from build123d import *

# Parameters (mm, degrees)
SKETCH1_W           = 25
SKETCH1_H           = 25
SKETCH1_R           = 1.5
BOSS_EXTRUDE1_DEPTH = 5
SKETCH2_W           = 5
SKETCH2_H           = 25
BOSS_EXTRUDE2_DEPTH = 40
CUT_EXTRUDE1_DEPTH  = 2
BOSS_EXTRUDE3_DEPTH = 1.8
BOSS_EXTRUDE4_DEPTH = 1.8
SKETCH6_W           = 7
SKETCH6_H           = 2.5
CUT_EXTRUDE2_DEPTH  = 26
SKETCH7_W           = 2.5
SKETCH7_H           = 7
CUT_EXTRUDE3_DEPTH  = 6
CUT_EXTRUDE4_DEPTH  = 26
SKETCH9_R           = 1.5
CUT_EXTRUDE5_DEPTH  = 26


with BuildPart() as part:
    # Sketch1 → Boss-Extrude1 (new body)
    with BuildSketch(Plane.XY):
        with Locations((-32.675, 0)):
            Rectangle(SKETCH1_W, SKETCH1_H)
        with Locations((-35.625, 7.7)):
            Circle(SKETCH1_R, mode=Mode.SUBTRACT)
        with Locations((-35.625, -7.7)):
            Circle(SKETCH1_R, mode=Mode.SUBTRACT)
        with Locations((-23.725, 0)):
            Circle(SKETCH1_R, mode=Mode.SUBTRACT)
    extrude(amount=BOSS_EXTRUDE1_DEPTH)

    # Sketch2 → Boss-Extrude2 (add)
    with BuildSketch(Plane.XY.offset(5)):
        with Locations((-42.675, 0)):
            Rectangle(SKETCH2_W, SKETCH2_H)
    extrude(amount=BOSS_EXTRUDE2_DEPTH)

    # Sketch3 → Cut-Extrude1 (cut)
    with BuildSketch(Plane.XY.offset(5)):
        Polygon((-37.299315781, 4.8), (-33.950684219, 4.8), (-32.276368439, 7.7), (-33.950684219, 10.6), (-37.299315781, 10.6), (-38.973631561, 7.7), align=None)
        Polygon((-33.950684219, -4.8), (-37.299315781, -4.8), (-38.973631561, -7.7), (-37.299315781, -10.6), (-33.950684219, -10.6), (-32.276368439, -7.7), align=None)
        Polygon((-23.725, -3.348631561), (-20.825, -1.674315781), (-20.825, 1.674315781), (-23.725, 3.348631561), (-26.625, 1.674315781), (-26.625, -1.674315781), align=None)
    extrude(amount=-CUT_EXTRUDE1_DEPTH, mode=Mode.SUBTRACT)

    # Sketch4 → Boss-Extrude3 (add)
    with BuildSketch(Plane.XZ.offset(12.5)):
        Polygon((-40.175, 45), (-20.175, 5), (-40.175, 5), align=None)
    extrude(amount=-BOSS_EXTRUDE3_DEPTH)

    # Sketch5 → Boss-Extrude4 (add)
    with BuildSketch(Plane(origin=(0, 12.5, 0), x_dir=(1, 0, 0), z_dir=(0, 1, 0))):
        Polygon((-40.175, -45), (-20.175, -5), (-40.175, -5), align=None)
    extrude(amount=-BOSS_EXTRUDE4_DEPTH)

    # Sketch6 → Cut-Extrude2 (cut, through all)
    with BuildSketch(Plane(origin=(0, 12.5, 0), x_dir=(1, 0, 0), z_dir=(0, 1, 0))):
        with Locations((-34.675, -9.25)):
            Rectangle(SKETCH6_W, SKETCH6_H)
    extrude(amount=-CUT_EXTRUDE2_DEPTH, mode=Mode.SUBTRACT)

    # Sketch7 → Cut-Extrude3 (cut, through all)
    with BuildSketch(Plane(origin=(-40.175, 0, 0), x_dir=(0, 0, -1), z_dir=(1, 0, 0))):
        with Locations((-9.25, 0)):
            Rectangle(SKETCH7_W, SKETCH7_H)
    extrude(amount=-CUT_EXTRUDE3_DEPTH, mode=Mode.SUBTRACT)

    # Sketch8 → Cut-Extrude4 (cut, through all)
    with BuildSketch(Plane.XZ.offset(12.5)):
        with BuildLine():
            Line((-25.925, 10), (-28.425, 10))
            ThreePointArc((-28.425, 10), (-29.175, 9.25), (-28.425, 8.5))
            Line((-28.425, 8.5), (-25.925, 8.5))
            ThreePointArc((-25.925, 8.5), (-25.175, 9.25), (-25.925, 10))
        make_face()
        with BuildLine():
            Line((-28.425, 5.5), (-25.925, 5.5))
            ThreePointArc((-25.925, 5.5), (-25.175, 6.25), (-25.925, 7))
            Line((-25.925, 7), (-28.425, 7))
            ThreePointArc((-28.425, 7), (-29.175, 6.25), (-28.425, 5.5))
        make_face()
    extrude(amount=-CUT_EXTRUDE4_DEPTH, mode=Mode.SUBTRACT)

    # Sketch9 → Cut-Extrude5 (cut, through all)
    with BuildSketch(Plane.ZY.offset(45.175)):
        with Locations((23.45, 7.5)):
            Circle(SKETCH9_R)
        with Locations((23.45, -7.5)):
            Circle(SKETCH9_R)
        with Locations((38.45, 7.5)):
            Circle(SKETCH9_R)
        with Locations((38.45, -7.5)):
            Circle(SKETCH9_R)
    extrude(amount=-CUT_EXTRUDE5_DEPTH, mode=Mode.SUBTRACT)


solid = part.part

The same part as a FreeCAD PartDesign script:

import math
import FreeCAD as App
import Part
import Sketcher

V = App.Vector
Q = App.Units.Quantity


def add_polygon(sketch, points):
    """Adds a closed chain of lines whose ends are joined by coincident constraints."""
    first, n = sketch.GeometryCount, len(points)
    for a, b in zip(points, points[1:] + points[:1]):
        sketch.addGeometry(Part.LineSegment(App.Vector(*a, 0), App.Vector(*b, 0)), False)
    for i in range(n):
        sketch.addConstraint(Sketcher.Constraint("Coincident", first + i, 2, first + (i + 1) % n, 1))

doc = App.newDocument("Part")
body = doc.addObject("PartDesign::Body", "Body")

sketch1 = body.newObject("Sketcher::SketchObject", "Sketch")
sketch1.AttachmentSupport = (doc.getObject("XY_Plane"), [""])
sketch1.MapMode = "FlatFace"
add_polygon(sketch1, [(-45.2, 12.5), (-45.2, -12.5), (-20.2, -12.5), (-20.2, 12.5)])
sketch1.addGeometry(Part.Circle(V(-35.6, -7.7, 0), V(0, 0, 1), 1.5), False)
sketch1.addGeometry(Part.Circle(V(-35.6, 7.7, 0), V(0, 0, 1), 1.5), False)
sketch1.addGeometry(Part.Circle(V(-23.7, 0, 0), V(0, 0, 1), 1.5), False)
sketch1.addConstraint([
    Sketcher.Constraint("Vertical", 0),
    Sketcher.Constraint("Horizontal", 1),
    Sketcher.Constraint("Vertical", 2),
    Sketcher.Constraint("Horizontal", 3),
    Sketcher.Constraint("Equal", 4, 5),
    Sketcher.Constraint("Equal", 5, 6),
    Sketcher.Constraint("Symmetric", 4, 3, 5, 3, -1),
    Sketcher.Constraint("PointOnObject", 6, 3, -1),
    Sketcher.Constraint("Equal", 3, 0),
    Sketcher.Constraint("Diameter", 4, Q("3 mm")),
    Sketcher.Constraint("DistanceX", 1, 1, 1, 2, Q("25 mm")),
    Sketcher.Constraint("DistanceY", 4, 3, -1, 1, Q("7.7 mm")),
    Sketcher.Constraint("DistanceY", 0, 2, -1, 1, Q("12.5 mm")),
    Sketcher.Constraint("DistanceX", 4, 3, 6, 3, Q("11.9 mm")),
    Sketcher.Constraint("DistanceX", 0, 2, 4, 3, Q("9.55 mm")),
    Sketcher.Constraint("DistanceX", 4, 3, -1, 1, Q("35.625 mm")),
])
pad1 = body.newObject("PartDesign::Pad", "Pad")
pad1.Profile = sketch1
pad1.Length = 5

sketch2 = body.newObject("Sketcher::SketchObject", "Sketch001")
sketch2.AttachmentSupport = (doc.getObject("XY_Plane"), [""])
sketch2.MapMode = "FlatFace"
sketch2.AttachmentOffset = App.Placement(V(0, 0, 5), App.Rotation())
add_polygon(sketch2, [(-45, 12), (-45, -12), (-40, -12), (-40, 12)])
sketch2.addConstraint([
    Sketcher.Constraint("Vertical", 0),
    Sketcher.Constraint("Horizontal", 1),
    Sketcher.Constraint("Vertical", 2),
    Sketcher.Constraint("Horizontal", 3),
    Sketcher.Constraint("DistanceX", 1, 1, 1, 2, Q("5 mm")),
    Sketcher.Constraint("DistanceY", 0, 2, 0, 1, Q("25 mm")),
    Sketcher.Constraint("DistanceY", 0, 2, -1, 1, Q("12.5 mm")),
    Sketcher.Constraint("DistanceX", 0, 2, -1, 1, Q("45.175 mm")),
])
pad2 = body.newObject("PartDesign::Pad", "Pad001")
pad2.Profile = sketch2
pad2.Length = 40

sketch3 = body.newObject("Sketcher::SketchObject", "Sketch002")
sketch3.AttachmentSupport = (doc.getObject("XY_Plane"), [""])
sketch3.MapMode = "FlatFace"
sketch3.AttachmentOffset = App.Placement(V(0, 0, 5), App.Rotation())
add_polygon(sketch3, [(-37.3, 4.8), (-34, 4.8), (-32.3, 7.7), (-34, 10.6), (-37.3, 10.6), (-39, 7.7)])
add_polygon(sketch3, [(-34, -4.8), (-37.3, -4.8), (-39, -7.7), (-37.3, -10.6), (-34, -10.6), (-32.3, -7.7)])
add_polygon(sketch3, [(-23.7, -3.3), (-20.8, -1.7), (-20.8, 1.7), (-23.7, 3.3), (-26.6, 1.7), (-26.6, -1.7)])
sketch3.addConstraint([
    Sketcher.Constraint("Horizontal", 0),
    Sketcher.Constraint("Horizontal", 3),
    Sketcher.Constraint("Horizontal", 6),
    Sketcher.Constraint("Horizontal", 9),
    Sketcher.Constraint("Vertical", 13),
    Sketcher.Constraint("Vertical", 16),
    Sketcher.Constraint("Symmetric", 5, 2, 6, 2, -1),
    Sketcher.Constraint("Symmetric", 4, 2, 7, 2, -1),
    Sketcher.Constraint("Symmetric", 3, 2, 8, 2, -1),
    Sketcher.Constraint("Symmetric", 1, 2, 10, 2, -1),
    Sketcher.Constraint("Symmetric", 14, 2, 17, 2, -1),
    Sketcher.Constraint("Parallel", 1, 4),
    Sketcher.Constraint("Parallel", 2, 5),
    Sketcher.Constraint("Parallel", 4, 7),
    Sketcher.Constraint("Parallel", 7, 10),
    Sketcher.Constraint("Parallel", 8, 11),
    Sketcher.Constraint("Perpendicular", 11, 12),
    Sketcher.Constraint("Perpendicular", 10, 14),
    Sketcher.Constraint("Parallel", 12, 15),
    Sketcher.Constraint("Parallel", 14, 17),
    Sketcher.Constraint("Horizontal", 1, 2, 4, 2),
    Sketcher.Constraint("Horizontal", 13, 2, 15, 2),
    Sketcher.Constraint("Vertical", 0, 2, 2, 2),
    Sketcher.Constraint("Equal", 9, 13),
    Sketcher.Constraint("Equal", 11, 12),
    Sketcher.Constraint("Angle", 1, Q("60 deg")),
    Sketcher.Constraint("DistanceY", -1, 1, 0, 2, Q("4.8 mm")),
    Sketcher.Constraint("DistanceY", -1, 1, 1, 2, Q("7.7 mm")),
    Sketcher.Constraint("DistanceX", 12, 2, -1, 1, Q("20.825 mm")),
    Sketcher.Constraint("DistanceX", 0, 1, 0, 2, Q("3.348632 mm")),
    Sketcher.Constraint("DistanceX", 1, 2, -1, 1, Q("32.276368 mm")),
])
pocket1 = body.newObject("PartDesign::Pocket", "Pocket")
pocket1.Profile = sketch3
pocket1.Length = 2

sketch4 = body.newObject("Sketcher::SketchObject", "Sketch003")
sketch4.AttachmentSupport = (doc.getObject("XZ_Plane"), [""])
sketch4.MapMode = "FlatFace"
sketch4.AttachmentOffset = App.Placement(V(0, 0, 12.5), App.Rotation())
add_polygon(sketch4, [(-20, 5), (-40, 45), (-40, 5)])
sketch4.addConstraint([
    Sketcher.Constraint("Vertical", 1),
    Sketcher.Constraint("Horizontal", 2),
    Sketcher.Constraint("DistanceX", 2, 1, 2, 2, Q("20 mm")),
    Sketcher.Constraint("DistanceY", 1, 2, 1, 1, Q("40 mm")),
    Sketcher.Constraint("DistanceY", -1, 1, 0, 2, Q("45 mm")),
    Sketcher.Constraint("DistanceX", 0, 2, -1, 1, Q("40.175 mm")),
])
pad3 = body.newObject("PartDesign::Pad", "Pad002")
pad3.Profile = sketch4
pad3.Length = 1.8
pad3.Reversed = True

sketch5 = body.newObject("Sketcher::SketchObject", "Sketch004")
sketch5.AttachmentSupport = (doc.getObject("XZ_Plane"), [""])
sketch5.MapMode = "FlatFace"
sketch5.AttachmentOffset = App.Placement(V(0, 0, -12.5), App.Rotation())
add_polygon(sketch5, [(-40, 45), (-20, 5), (-40, 5)])
sketch5.addConstraint([
    Sketcher.Constraint("Horizontal", 1),
    Sketcher.Constraint("Vertical", 2),
    Sketcher.Constraint("DistanceX", 1, 2, 1, 1, Q("20 mm")),
    Sketcher.Constraint("DistanceY", 2, 1, 2, 2, Q("40 mm")),
    Sketcher.Constraint("DistanceY", -1, 1, 0, 2, Q("5 mm")),
    Sketcher.Constraint("DistanceX", 0, 2, -1, 1, Q("20.175 mm")),
])
pad4 = body.newObject("PartDesign::Pad", "Pad003")
pad4.Profile = sketch5
pad4.Length = 1.8

sketch6 = body.newObject("Sketcher::SketchObject", "Sketch005")
sketch6.AttachmentSupport = (doc.getObject("XZ_Plane"), [""])
sketch6.MapMode = "FlatFace"
sketch6.AttachmentOffset = App.Placement(V(0, 0, -12.5), App.Rotation())
add_polygon(sketch6, [(-38.2, 8), (-38.2, 10.5), (-31.2, 10.5), (-31.2, 8)])
sketch6.addConstraint([
    Sketcher.Constraint("Vertical", 0),
    Sketcher.Constraint("Horizontal", 1),
    Sketcher.Constraint("Vertical", 2),
    Sketcher.Constraint("Horizontal", 3),
    Sketcher.Constraint("DistanceX", 1, 1, 1, 2, Q("7 mm")),
    Sketcher.Constraint("DistanceY", 0, 1, 0, 2, Q("2.5 mm")),
    Sketcher.Constraint("DistanceY", -1, 1, 2, 2, Q("8 mm")),
    Sketcher.Constraint("DistanceX", 0, 2, -1, 1, Q("38.175 mm")),
])
pocket2 = body.newObject("PartDesign::Pocket", "Pocket001")
pocket2.Profile = sketch6
pocket2.Type = "ThroughAll"
pocket2.Reversed = True

sketch7 = body.newObject("Sketcher::SketchObject", "Sketch006")
sketch7.AttachmentSupport = (doc.getObject("YZ_Plane"), [""])
sketch7.MapMode = "FlatFace"
sketch7.AttachmentOffset = App.Placement(V(0, 0, -40.175), App.Rotation())
add_polygon(sketch7, [(3.5, 10.5), (-3.5, 10.5), (-3.5, 8), (3.5, 8)])
sketch7.addConstraint([
    Sketcher.Constraint("Horizontal", 0),
    Sketcher.Constraint("Vertical", 1),
    Sketcher.Constraint("Horizontal", 2),
    Sketcher.Constraint("Vertical", 3),
    Sketcher.Constraint("DistanceX", 0, 2, 0, 1, Q("7 mm")),
    Sketcher.Constraint("DistanceY", 1, 2, 1, 1, Q("2.5 mm")),
    Sketcher.Constraint("DistanceY", -1, 1, 1, 2, Q("8 mm")),
    Sketcher.Constraint("DistanceX", 0, 2, -1, 1, Q("3.5 mm")),
])
pocket3 = body.newObject("PartDesign::Pocket", "Pocket002")
pocket3.Profile = sketch7
pocket3.Type = "ThroughAll"

sketch8 = body.newObject("Sketcher::SketchObject", "Sketch007")
sketch8.AttachmentSupport = (doc.getObject("XZ_Plane"), [""])
sketch8.MapMode = "FlatFace"
sketch8.AttachmentOffset = App.Placement(V(0, 0, 12.5), App.Rotation())
sketch8.addGeometry([
    Part.LineSegment(V(-25.9, 10, 0), V(-28.4, 10, 0)),
    Part.ArcOfCircle(Part.Circle(V(-28.4, 9.2, 0), V(0, 0, 1), 0.8), math.radians(90), math.radians(270)),
    Part.LineSegment(V(-28.4, 8.5, 0), V(-25.9, 8.5, 0)),
    Part.ArcOfCircle(Part.Circle(V(-25.9, 9.2, 0), V(0, 0, 1), 0.8), math.radians(-90), math.radians(90)),
    Part.LineSegment(V(-28.4, 5.5, 0), V(-25.9, 5.5, 0)),
    Part.ArcOfCircle(Part.Circle(V(-25.9, 6.2, 0), V(0, 0, 1), 0.8), math.radians(-90), math.radians(90)),
    Part.LineSegment(V(-25.9, 7, 0), V(-28.4, 7, 0)),
    Part.ArcOfCircle(Part.Circle(V(-28.4, 6.2, 0), V(0, 0, 1), 0.8), math.radians(90), math.radians(270)),
], False)
sketch8.addConstraint([
    Sketcher.Constraint("Tangent", 0, 2, 1, 1),
    Sketcher.Constraint("Tangent", 1, 2, 2, 1),
    Sketcher.Constraint("Tangent", 2, 2, 3, 1),
    Sketcher.Constraint("Tangent", 3, 2, 0, 1),
    Sketcher.Constraint("Tangent", 4, 2, 5, 1),
    Sketcher.Constraint("Tangent", 5, 2, 6, 1),
    Sketcher.Constraint("Tangent", 6, 2, 7, 1),
    Sketcher.Constraint("Tangent", 7, 2, 4, 1),
    Sketcher.Constraint("Horizontal", 0),
    Sketcher.Constraint("Horizontal", 2),
    Sketcher.Constraint("Horizontal", 4),
    Sketcher.Constraint("Horizontal", 6),
    Sketcher.Constraint("Equal", 3, 5),
    Sketcher.Constraint("Vertical", 3, 3, 5, 3),
    Sketcher.Constraint("Vertical", 1, 3, 7, 3),
    Sketcher.Constraint("Radius", 1, Q("0.75 mm")),
    Sketcher.Constraint("DistanceX", 0, 2, 0, 1, Q("2.5 mm")),
    Sketcher.Constraint("DistanceY", -1, 1, 0, 2, Q("10 mm")),
    Sketcher.Constraint("DistanceY", -1, 1, 5, 2, Q("7 mm")),
    Sketcher.Constraint("DistanceX", 1, 3, -1, 1, Q("28.425 mm")),
])
pocket4 = body.newObject("PartDesign::Pocket", "Pocket003")
pocket4.Profile = sketch8
pocket4.Type = "ThroughAll"

sketch9 = body.newObject("Sketcher::SketchObject", "Sketch008")
sketch9.AttachmentSupport = (doc.getObject("YZ_Plane"), [""])
sketch9.MapMode = "FlatFace"
sketch9.AttachmentOffset = App.Placement(V(0, 0, -45.175), App.Rotation())
sketch9.addGeometry([
    Part.Circle(V(7.5, 23.4, 0), V(0, 0, 1), 1.5),
    Part.Circle(V(-7.5, 23.4, 0), V(0, 0, 1), 1.5),
    Part.Circle(V(7.5, 38.5, 0), V(0, 0, 1), 1.5),
    Part.Circle(V(-7.5, 38.5, 0), V(0, 0, 1), 1.5),
], False)
sketch9.addConstraint([
    Sketcher.Constraint("Equal", 0, 1),
    Sketcher.Constraint("Equal", 1, 2),
    Sketcher.Constraint("Equal", 2, 3),
    Sketcher.Constraint("Symmetric", 0, 3, 1, 3, -2),
    Sketcher.Constraint("Symmetric", 2, 3, 3, 3, -2),
    Sketcher.Constraint("Vertical", 0, 3, 2, 3),
    Sketcher.Constraint("Diameter", 0, Q("3 mm")),
    Sketcher.Constraint("DistanceX", 1, 3, 0, 3, Q("15 mm")),
    Sketcher.Constraint("DistanceY", 0, 3, 2, 3, Q("15 mm")),
    Sketcher.Constraint("DistanceY", -1, 1, 0, 3, Q("23.45 mm")),
])
pocket5 = body.newObject("PartDesign::Pocket", "Pocket004")
pocket5.Profile = sketch9
pocket5.Type = "ThroughAll"
pocket5.Reversed = True

doc.recompute()
